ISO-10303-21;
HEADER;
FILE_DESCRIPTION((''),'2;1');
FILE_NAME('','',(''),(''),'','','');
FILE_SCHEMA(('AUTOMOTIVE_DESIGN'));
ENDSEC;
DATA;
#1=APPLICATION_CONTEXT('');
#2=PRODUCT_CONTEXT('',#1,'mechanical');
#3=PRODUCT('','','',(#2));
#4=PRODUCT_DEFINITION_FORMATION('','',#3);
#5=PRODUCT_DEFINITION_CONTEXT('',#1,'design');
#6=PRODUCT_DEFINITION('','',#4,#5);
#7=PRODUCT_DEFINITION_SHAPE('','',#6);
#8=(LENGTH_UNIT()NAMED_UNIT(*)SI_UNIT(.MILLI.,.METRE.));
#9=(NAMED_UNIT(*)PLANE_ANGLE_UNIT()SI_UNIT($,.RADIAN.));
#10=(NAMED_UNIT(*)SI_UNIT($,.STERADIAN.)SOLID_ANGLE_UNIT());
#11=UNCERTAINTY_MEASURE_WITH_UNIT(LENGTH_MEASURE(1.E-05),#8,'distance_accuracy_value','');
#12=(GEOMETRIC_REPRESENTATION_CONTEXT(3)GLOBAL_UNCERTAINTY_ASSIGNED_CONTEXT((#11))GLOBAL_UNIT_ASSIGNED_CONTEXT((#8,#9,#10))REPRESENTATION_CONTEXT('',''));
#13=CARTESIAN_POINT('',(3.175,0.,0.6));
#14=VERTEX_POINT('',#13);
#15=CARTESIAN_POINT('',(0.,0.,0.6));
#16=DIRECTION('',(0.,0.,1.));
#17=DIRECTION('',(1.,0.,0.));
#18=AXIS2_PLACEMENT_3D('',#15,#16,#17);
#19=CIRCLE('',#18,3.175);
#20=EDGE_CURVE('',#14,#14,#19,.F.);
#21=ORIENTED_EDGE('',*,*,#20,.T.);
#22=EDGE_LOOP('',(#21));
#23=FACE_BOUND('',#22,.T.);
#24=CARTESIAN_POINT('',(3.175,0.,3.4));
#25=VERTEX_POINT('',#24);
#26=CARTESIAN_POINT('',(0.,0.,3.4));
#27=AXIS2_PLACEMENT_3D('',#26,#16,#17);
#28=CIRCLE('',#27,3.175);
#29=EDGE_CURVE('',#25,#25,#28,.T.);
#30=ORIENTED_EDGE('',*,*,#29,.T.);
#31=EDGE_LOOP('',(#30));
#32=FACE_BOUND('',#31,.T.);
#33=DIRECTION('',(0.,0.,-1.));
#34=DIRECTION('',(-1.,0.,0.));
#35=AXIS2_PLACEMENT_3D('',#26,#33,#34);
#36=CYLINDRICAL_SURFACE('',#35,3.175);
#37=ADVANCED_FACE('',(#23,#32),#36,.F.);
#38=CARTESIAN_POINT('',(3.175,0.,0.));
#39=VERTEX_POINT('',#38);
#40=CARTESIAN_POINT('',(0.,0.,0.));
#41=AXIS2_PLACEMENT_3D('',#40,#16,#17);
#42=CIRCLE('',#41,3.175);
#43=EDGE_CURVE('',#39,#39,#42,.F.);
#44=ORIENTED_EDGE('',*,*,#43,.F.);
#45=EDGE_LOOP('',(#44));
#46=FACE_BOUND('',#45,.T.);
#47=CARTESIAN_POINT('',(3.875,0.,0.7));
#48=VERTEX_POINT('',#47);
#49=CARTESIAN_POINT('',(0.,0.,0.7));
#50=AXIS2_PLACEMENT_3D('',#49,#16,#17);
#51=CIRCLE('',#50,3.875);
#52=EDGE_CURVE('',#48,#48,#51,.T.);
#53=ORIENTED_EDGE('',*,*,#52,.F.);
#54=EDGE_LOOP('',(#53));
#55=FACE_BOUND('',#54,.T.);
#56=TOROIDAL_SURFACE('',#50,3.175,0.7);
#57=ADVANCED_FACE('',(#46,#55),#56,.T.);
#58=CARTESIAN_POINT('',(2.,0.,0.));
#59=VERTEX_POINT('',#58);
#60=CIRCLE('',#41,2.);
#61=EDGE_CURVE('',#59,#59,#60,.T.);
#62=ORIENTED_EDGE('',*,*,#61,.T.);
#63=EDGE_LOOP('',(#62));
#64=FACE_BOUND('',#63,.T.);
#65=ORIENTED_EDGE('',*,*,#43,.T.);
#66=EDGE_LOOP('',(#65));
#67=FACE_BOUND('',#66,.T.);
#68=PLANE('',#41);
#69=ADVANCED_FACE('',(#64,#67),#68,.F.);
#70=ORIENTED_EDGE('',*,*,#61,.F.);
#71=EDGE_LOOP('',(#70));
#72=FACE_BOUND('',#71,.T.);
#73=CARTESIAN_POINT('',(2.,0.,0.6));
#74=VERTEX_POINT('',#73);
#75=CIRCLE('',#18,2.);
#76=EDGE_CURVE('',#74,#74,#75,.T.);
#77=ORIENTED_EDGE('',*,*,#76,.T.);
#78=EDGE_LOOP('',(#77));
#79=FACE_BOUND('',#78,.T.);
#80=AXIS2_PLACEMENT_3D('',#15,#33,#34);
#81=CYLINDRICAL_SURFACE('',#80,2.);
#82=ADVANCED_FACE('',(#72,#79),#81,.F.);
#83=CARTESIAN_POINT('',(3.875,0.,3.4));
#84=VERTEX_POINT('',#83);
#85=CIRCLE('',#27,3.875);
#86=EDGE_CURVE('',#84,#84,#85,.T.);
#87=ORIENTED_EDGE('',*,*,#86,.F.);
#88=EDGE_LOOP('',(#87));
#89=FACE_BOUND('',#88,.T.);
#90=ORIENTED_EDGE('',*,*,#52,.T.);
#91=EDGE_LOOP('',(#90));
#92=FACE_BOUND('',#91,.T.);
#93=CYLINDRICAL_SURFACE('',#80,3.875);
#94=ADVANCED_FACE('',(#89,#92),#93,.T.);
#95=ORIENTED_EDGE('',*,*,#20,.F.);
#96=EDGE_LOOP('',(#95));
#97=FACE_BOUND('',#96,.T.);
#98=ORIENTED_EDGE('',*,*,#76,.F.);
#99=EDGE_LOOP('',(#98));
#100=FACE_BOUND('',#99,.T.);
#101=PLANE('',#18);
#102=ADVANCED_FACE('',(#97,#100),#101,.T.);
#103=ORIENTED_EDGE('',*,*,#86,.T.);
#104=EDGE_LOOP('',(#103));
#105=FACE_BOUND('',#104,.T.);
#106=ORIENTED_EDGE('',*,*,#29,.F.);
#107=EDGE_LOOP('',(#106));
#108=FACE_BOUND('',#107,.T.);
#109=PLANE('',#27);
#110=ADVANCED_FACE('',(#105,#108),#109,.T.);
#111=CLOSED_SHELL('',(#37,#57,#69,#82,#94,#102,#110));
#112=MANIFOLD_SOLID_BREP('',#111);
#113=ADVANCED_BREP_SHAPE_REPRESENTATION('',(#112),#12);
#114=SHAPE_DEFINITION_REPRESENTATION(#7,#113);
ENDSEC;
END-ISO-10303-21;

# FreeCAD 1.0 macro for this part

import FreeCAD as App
import Part
import Sketcher

V = App.Vector


def edges_at(feature, points):
    """Names of the edges that pass closest to the given points."""
    edges = feature.Shape.Edges
    near = lambda p: min(range(len(edges)), key=lambda i: edges[i].distToShape(Part.Vertex(*p))[0])
    return sorted({f"Edge{near(p) + 1}" for p in points})

doc = App.newDocument("Part")
body = doc.addObject("PartDesign::Body", "Body")

# Sketch on XY plane
sketch1 = doc.addObject("Sketcher::SketchObject", "Sketch")
body.addObject(sketch1)
sketch1.AttachmentSupport = (doc.XY_Plane, [""])
sketch1.MapMode = "FlatFace"
sketch1.addGeometry([
    Part.Circle(V(0, 0, 0), V(0, 0, 1), 3.9),
    Part.Circle(V(0, 0, 0), V(0, 0, 1), 2),
], False)
sketch1.addConstraint([
    Sketcher.Constraint("Coincident", 0, 3, -1, 1),
    Sketcher.Constraint("Coincident", 1, 3, -1, 1),
    Sketcher.Constraint("Diameter", 1, 4.0),
    Sketcher.Constraint("Diameter", 0, 7.75),
])
pad1 = doc.addObject("PartDesign::Pad", "Pad")
body.addObject(pad1)
pad1.Profile = sketch1
pad1.Length = 0.6

# Sketch on XY plane
sketch2 = doc.addObject("Sketcher::SketchObject", "Sketch001")
body.addObject(sketch2)
sketch2.AttachmentSupport = (doc.XY_Plane, [""])
sketch2.MapMode = "FlatFace"
sketch2.AttachmentOffset = App.Placement(V(0, 0, 0.6), App.Rotation())
sketch2.addGeometry([
    Part.Circle(V(0, 0, 0), V(0, 0, 1), 3.9),
    Part.Circle(V(0, 0, 0), V(0, 0, 1), 3.2),
], False)
sketch2.addConstraint([
    Sketcher.Constraint("Coincident", 0, 3, -1, 1),
    Sketcher.Constraint("Coincident", 1, 3, -1, 1),
    Sketcher.Constraint("Diameter", 0, 7.75),
    Sketcher.Constraint("Diameter", 1, 6.35),
])
pad2 = doc.addObject("PartDesign::Pad", "Pad001")
body.addObject(pad2)
pad2.Profile = sketch2
pad2.Length = 2.8
doc.recompute()

fillet = doc.addObject("PartDesign::Fillet", "Fillet")
body.addObject(fillet)
fillet.Base = (pad2, edges_at(pad2, [(-3.875, 0, 0)]))
fillet.Radius = 0.7

doc.recompute()
